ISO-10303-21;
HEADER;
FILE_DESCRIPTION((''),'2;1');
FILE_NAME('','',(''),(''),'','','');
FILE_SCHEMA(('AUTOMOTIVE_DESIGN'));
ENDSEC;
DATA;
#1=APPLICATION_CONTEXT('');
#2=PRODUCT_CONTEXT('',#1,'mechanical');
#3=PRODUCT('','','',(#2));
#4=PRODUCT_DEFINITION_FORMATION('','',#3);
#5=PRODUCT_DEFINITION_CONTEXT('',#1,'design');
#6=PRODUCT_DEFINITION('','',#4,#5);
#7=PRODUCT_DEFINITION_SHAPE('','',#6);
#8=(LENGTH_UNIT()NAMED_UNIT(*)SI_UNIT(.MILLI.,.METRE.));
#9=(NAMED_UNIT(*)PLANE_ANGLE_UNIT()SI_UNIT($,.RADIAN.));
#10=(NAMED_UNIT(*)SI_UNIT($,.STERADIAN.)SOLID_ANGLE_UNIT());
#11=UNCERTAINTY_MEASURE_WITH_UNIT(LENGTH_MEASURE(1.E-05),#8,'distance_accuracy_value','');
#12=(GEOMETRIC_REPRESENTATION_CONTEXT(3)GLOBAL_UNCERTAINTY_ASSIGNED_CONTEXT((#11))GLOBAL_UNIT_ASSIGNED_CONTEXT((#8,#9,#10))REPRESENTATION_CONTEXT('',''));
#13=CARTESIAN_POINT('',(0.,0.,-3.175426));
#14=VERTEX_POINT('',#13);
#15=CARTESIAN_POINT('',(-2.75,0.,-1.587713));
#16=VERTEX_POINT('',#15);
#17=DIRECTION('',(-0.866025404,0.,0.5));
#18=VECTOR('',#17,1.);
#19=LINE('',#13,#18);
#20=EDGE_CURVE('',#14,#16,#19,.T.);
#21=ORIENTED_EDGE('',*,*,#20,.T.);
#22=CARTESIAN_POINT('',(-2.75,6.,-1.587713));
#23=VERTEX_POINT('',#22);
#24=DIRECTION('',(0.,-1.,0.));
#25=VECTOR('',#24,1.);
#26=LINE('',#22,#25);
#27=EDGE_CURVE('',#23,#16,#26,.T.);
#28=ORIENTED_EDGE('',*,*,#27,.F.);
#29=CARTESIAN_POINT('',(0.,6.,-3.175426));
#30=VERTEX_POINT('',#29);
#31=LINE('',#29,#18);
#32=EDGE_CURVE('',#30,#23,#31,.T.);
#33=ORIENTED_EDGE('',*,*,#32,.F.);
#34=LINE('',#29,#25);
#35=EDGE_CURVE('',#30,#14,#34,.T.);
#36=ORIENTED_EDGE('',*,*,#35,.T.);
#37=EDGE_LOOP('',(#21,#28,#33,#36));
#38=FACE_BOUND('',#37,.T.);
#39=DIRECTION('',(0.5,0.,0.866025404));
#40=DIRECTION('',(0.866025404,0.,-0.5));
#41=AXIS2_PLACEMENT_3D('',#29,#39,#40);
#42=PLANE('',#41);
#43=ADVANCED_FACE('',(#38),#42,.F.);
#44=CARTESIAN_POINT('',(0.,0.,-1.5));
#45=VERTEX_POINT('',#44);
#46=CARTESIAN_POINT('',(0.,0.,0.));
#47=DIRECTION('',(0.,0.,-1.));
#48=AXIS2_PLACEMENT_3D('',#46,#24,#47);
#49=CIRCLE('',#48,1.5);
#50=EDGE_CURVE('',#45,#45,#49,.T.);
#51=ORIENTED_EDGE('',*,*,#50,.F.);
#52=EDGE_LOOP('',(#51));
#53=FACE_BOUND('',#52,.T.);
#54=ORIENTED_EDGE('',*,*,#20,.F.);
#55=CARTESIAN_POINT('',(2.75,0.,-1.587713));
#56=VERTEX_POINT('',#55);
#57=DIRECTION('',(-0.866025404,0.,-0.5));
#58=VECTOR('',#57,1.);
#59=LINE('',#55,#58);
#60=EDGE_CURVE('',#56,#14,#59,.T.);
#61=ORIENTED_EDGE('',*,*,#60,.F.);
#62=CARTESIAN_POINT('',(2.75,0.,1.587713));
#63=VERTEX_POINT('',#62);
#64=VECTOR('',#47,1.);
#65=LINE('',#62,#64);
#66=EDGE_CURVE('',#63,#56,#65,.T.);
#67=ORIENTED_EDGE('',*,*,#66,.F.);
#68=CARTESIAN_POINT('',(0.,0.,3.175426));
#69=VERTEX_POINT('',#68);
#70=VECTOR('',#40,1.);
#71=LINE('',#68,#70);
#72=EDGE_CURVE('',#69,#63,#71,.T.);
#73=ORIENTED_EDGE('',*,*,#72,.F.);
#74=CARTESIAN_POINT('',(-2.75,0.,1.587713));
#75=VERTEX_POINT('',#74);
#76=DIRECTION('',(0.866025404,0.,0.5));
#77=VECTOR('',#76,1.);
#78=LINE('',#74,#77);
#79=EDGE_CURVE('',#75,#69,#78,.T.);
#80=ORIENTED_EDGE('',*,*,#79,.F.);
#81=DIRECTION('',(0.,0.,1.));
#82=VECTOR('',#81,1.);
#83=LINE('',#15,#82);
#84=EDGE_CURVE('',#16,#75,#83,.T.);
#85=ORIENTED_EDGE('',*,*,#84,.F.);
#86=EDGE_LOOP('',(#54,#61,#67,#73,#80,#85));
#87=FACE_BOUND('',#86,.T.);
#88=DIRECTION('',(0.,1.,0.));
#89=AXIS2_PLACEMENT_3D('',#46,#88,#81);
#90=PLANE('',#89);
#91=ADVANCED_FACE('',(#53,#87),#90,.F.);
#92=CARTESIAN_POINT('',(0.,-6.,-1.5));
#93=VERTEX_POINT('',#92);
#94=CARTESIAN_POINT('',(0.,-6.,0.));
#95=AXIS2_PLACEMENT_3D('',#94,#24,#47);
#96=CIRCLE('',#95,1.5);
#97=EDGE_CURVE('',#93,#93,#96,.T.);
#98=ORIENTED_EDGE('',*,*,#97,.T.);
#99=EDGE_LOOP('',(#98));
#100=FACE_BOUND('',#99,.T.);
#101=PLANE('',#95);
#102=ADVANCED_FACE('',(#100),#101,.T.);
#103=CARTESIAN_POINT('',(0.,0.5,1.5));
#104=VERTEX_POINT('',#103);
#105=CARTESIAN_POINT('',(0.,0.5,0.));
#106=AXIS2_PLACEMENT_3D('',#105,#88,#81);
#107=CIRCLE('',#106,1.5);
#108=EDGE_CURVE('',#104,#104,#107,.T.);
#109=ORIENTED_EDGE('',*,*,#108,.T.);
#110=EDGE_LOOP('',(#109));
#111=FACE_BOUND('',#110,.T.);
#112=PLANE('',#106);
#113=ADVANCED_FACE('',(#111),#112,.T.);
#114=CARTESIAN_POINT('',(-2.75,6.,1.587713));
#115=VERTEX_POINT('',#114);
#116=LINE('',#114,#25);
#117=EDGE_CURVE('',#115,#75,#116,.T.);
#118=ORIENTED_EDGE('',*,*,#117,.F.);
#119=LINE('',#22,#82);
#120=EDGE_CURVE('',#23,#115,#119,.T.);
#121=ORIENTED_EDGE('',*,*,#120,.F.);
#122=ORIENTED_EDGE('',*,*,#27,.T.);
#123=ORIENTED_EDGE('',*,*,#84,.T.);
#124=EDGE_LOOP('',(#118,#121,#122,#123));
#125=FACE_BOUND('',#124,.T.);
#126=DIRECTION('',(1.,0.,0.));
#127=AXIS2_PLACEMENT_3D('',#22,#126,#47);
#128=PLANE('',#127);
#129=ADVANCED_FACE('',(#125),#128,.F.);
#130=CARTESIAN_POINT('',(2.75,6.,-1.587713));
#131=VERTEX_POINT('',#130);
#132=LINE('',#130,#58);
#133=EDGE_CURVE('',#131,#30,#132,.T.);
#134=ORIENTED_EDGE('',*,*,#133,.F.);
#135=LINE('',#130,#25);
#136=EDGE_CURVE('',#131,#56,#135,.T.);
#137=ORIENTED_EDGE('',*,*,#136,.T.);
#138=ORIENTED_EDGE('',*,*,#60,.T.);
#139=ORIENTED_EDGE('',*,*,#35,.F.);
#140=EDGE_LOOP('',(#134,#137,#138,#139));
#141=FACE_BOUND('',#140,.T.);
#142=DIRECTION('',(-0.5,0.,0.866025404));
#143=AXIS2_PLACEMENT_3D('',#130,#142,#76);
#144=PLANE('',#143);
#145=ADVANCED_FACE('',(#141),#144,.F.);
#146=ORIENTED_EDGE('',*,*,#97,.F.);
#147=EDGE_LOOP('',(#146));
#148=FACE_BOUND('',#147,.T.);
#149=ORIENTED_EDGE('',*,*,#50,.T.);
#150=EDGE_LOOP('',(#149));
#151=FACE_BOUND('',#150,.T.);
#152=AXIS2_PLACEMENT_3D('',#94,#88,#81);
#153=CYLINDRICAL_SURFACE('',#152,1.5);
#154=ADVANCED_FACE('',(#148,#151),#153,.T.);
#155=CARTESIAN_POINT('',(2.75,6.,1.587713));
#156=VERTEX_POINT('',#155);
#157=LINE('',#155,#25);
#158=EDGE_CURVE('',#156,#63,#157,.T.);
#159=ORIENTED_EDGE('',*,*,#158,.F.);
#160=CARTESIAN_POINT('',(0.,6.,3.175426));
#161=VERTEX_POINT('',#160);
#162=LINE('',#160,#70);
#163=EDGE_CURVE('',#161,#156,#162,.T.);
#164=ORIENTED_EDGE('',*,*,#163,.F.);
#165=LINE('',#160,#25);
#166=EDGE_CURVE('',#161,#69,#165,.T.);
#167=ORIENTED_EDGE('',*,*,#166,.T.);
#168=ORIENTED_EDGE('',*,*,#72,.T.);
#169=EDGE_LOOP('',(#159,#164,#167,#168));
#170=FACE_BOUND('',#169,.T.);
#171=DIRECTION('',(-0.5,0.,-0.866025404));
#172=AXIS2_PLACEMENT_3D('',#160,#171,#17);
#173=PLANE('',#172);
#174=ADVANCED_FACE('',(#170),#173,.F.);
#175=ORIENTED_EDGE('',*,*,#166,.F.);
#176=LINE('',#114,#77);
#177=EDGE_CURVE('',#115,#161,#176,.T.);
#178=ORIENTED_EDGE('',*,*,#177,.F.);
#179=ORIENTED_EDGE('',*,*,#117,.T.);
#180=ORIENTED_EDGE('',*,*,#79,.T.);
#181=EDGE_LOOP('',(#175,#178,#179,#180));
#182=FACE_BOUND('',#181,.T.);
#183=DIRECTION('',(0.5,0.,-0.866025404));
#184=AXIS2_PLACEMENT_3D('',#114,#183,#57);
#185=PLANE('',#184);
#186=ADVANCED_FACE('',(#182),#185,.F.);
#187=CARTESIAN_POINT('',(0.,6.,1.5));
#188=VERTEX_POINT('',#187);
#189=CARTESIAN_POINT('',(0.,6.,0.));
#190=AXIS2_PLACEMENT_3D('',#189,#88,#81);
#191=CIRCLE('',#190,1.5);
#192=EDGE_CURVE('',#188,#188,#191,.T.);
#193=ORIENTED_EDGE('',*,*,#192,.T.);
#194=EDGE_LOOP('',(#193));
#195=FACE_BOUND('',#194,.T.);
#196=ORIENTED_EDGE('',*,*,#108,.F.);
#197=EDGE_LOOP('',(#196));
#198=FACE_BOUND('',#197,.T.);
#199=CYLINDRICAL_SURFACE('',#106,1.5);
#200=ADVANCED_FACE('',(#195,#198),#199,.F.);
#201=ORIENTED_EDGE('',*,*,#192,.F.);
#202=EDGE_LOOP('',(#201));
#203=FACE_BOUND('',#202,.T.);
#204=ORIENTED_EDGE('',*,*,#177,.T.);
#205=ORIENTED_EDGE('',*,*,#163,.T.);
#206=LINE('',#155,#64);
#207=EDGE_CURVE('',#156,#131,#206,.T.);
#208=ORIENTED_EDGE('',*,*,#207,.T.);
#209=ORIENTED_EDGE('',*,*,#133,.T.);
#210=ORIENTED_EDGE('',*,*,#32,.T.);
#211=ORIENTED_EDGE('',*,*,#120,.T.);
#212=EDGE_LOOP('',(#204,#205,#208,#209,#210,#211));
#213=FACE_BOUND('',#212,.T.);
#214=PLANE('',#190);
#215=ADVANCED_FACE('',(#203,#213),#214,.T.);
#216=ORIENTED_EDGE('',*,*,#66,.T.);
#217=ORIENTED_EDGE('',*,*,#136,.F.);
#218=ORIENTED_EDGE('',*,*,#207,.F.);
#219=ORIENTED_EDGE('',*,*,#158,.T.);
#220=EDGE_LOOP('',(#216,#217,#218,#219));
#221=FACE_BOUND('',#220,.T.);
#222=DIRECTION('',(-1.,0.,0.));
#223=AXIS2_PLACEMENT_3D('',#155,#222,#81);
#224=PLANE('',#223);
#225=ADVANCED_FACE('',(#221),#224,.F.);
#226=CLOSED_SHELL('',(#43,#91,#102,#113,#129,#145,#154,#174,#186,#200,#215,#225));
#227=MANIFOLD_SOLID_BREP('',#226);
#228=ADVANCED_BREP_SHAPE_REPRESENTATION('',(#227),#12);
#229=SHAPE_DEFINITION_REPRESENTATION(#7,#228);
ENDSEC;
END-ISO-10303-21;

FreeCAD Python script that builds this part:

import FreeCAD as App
import Part
import Sketcher
from FreeCAD import Vector
Q = App.Units.Quantity

doc = App.newDocument("Part")
body = doc.addObject("PartDesign::Body", "Body")

# Sketch on XZ plane
sketch1 = body.newObject("Sketcher::SketchObject", "Sketch")
sketch1.AttachmentSupport = (doc.getObject("XZ_Plane"), [""])
sketch1.MapMode = "FlatFace"
sketch1.addGeometry([
    Part.LineSegment(Vector(0, -3.175426, 0), Vector(-2.75, -1.587713, 0)),  # 0
    Part.LineSegment(Vector(-2.75, -1.587713, 0), Vector(-2.75, 1.587713, 0)),  # 1
    Part.LineSegment(Vector(-2.75, 1.587713, 0), Vector(0, 3.175426, 0)),  # 2
    Part.LineSegment(Vector(0, 3.175426, 0), Vector(2.75, 1.587713, 0)),  # 3
    Part.LineSegment(Vector(2.75, 1.587713, 0), Vector(2.75, -1.587713, 0)),  # 4
    Part.LineSegment(Vector(2.75, -1.587713, 0), Vector(0, -3.175426, 0)),  # 5
], False)
sketch1.addConstraint([
    Sketcher.Constraint("Coincident", 0, 2, 1, 1),
    Sketcher.Constraint("Coincident", 1, 2, 2, 1),
    Sketcher.Constraint("Coincident", 2, 2, 3, 1),
    Sketcher.Constraint("Coincident", 3, 2, 4, 1),
    Sketcher.Constraint("Coincident", 4, 2, 5, 1),
    Sketcher.Constraint("Coincident", 5, 2, 0, 1),
    Sketcher.Constraint("Vertical", 1),
    Sketcher.Constraint("Vertical", 4),
    Sketcher.Constraint("Symmetric", 0, 2, 3, 2, -1, 1),
    Sketcher.Constraint("Symmetric", 2, 2, 5, 2, -1, 1),
    Sketcher.Constraint("PointOnObject", 2, 2, -2),
    Sketcher.Constraint("Parallel", 2, 5),
    Sketcher.Constraint("Horizontal", 1, 2, 3, 2),
    Sketcher.Constraint("Angle", 0, Q("150 deg")),
    Sketcher.Constraint("DistanceX", 1, 2, 3, 2, 5.5),
    Sketcher.Constraint("DistanceY", 1, 1, 1, 2, 3.175426),
])
pad1 = body.newObject("PartDesign::Pad", "Pad")
pad1.Profile = sketch1
pad1.Length = 6
pad1.Reversed = True

# Sketch on XZ plane
sketch2 = body.newObject("Sketcher::SketchObject", "Sketch001")
sketch2.AttachmentSupport = (doc.getObject("XZ_Plane"), [""])
sketch2.MapMode = "FlatFace"
sketch2.addGeometry(Part.Circle(Vector(0, 0, 0), Vector(0, 0, 1), 1.5), False)
sketch2.addConstraint([
    Sketcher.Constraint("Coincident", 0, 3, -1, 1),
    Sketcher.Constraint("Diameter", 0, 3.0),
])
pad2 = body.newObject("PartDesign::Pad", "Pad001")
pad2.Profile = sketch2
pad2.Length = 6

# Sketch on XZ plane
sketch3 = body.newObject("Sketcher::SketchObject", "Sketch002")
sketch3.AttachmentSupport = (doc.getObject("XZ_Plane"), [""])
sketch3.MapMode = "FlatFace"
sketch3.AttachmentOffset = App.Placement(Vector(0, 0, -6), App.Rotation())
sketch3.addGeometry(Part.Circle(Vector(0, 0, 0), Vector(0, 0, 1), 1.5), False)
sketch3.addConstraint([
    Sketcher.Constraint("Coincident", 0, 3, -1, 1),
    Sketcher.Constraint("Diameter", 0, 3.0),
])
pocket1 = body.newObject("PartDesign::Pocket", "Pocket")
pocket1.Profile = sketch3
pocket1.Length = 5.5
pocket1.Reversed = True

doc.recompute()
